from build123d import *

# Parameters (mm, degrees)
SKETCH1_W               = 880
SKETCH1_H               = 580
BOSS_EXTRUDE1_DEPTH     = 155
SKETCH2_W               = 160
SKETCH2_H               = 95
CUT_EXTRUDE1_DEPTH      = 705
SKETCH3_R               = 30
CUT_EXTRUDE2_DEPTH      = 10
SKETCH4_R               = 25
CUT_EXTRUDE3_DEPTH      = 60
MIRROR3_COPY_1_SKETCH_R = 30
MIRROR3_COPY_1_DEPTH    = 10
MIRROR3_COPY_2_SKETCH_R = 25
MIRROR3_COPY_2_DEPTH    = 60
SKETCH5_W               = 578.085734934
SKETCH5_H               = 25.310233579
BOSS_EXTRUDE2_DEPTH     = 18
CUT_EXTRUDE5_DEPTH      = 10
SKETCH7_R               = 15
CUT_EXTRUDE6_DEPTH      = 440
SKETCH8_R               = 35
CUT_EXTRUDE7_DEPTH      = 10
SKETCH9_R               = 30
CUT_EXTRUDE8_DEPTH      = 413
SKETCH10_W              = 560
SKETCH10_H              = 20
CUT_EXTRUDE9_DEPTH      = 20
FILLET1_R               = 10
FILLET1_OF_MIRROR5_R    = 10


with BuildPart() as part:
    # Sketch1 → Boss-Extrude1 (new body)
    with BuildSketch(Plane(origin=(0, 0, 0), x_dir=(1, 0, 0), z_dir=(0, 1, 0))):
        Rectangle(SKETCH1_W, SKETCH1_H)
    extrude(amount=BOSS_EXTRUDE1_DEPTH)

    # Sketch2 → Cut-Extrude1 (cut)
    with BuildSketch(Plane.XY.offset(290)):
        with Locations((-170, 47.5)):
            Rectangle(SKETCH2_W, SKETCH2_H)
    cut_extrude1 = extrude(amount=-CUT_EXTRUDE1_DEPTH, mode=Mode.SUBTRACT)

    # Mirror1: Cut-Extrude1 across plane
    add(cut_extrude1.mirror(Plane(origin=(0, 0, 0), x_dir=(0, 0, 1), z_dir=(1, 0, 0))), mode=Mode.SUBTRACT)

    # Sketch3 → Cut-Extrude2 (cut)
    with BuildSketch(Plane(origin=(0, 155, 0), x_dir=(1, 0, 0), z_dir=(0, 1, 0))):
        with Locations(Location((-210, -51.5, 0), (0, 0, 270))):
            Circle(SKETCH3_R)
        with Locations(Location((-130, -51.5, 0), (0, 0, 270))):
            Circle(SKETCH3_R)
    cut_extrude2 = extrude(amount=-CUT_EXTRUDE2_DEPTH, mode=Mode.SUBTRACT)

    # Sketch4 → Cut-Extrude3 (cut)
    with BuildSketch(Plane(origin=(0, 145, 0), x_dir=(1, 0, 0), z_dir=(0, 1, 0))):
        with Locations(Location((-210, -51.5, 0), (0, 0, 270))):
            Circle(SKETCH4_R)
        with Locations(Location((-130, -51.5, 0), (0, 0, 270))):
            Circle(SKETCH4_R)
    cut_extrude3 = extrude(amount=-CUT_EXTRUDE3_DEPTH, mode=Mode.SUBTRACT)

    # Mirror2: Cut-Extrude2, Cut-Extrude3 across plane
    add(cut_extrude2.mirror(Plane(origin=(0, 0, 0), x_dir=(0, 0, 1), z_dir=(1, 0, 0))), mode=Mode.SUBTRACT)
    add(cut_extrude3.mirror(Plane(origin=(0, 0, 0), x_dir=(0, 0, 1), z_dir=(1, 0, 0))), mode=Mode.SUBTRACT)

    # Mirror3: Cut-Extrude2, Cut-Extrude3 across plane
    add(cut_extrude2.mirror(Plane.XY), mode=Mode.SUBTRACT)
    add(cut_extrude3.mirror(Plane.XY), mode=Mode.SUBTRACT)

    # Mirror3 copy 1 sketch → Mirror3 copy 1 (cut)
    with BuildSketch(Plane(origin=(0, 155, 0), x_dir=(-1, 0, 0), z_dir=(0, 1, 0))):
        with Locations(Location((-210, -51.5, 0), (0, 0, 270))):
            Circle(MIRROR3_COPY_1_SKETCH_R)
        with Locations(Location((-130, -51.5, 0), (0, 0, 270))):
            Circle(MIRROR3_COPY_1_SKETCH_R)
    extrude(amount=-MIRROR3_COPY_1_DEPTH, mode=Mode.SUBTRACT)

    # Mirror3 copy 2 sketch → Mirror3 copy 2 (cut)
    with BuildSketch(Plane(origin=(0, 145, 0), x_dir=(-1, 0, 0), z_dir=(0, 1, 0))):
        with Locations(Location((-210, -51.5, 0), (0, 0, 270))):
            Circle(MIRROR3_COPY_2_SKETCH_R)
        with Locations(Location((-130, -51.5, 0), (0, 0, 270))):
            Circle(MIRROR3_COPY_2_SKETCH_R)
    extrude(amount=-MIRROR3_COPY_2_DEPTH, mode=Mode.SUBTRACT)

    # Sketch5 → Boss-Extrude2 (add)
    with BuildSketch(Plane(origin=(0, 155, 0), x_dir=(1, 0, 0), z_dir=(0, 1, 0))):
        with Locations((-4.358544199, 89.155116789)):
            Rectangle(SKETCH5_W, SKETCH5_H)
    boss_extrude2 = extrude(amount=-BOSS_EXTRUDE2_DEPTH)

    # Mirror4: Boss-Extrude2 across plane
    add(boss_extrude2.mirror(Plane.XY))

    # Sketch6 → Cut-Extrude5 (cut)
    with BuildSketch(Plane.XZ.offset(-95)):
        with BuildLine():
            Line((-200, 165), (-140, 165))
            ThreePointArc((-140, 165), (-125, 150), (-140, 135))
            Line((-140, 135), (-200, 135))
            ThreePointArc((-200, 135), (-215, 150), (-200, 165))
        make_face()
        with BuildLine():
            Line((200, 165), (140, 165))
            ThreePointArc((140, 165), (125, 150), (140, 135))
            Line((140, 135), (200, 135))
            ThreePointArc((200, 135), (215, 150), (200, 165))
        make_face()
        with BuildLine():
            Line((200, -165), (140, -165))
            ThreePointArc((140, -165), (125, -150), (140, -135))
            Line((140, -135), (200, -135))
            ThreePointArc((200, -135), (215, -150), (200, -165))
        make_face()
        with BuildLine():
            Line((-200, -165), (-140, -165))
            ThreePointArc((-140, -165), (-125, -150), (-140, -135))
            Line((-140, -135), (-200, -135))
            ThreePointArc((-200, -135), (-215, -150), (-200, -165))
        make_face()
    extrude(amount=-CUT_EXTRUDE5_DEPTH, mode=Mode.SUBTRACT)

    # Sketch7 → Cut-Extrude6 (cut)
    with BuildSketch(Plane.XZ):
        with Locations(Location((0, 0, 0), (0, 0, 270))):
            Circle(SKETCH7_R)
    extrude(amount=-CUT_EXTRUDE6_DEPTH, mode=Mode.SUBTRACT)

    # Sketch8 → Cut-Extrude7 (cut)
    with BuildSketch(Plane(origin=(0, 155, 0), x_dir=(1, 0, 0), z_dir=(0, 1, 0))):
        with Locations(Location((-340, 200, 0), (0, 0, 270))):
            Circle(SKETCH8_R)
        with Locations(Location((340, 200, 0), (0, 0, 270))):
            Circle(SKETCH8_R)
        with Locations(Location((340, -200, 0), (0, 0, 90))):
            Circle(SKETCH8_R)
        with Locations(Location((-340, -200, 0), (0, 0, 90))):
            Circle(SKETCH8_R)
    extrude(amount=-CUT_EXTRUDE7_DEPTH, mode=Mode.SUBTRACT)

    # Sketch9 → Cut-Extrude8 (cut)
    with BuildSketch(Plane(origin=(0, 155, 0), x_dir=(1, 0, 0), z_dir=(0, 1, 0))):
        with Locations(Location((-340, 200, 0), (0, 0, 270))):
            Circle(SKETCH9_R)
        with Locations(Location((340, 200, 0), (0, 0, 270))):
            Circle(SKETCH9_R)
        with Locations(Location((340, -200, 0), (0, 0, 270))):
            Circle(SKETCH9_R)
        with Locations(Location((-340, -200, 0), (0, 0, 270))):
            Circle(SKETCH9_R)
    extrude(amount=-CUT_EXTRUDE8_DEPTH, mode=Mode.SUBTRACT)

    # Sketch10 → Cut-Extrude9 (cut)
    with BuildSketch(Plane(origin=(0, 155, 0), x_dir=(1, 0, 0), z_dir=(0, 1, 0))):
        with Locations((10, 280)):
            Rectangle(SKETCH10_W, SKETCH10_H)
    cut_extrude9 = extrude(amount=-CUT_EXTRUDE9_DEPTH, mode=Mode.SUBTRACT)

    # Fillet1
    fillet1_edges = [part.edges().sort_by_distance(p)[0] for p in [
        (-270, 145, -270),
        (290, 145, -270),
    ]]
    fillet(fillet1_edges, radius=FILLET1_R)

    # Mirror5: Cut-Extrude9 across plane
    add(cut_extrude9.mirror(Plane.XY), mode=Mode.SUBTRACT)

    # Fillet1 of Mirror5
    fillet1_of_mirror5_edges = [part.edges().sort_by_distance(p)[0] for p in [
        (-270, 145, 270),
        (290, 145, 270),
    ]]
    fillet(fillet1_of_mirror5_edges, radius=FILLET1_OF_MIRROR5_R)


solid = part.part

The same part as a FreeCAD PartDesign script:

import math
import FreeCAD as App
import Part
import Sketcher

V = App.Vector


def edges_at(feature, points):
    """Names of the edges that pass closest to the given points."""
    edges = feature.Shape.Edges
    near = lambda p: min(range(len(edges)), key=lambda i: edges[i].distToShape(Part.Vertex(*p))[0])
    return sorted({f"Edge{near(p) + 1}" for p in points})

doc = App.newDocument("Part")
params = doc.addObject("Spreadsheet::Sheet", "Params")
for row, (alias, value) in enumerate([
    ("sketch1_width", "880 mm"),
    ("sketch1_height", "580 mm"),
    ("pad1_length", "155 mm"),
    ("sketch2_width", "160 mm"),
    ("sketch2_height", "95 mm"),
    ("pocket1_length", "705 mm"),
    ("sketch3_diameter", "60 mm"),
    ("pocket2_length", "10 mm"),
    ("sketch4_diameter", "50 mm"),
    ("pocket3_length", "60 mm"),
    ("sketch5_diameter", "60 mm"),
    ("pocket4_length", "10 mm"),
    ("sketch6_diameter", "50 mm"),
    ("pocket5_length", "60 mm"),
    ("pad2_length", "18 mm"),
    ("sketch8_radius", "15 mm"),
    ("sketch8_width", "60 mm"),
    ("pocket6_length", "10 mm"),
    ("sketch9_diameter", "30 mm"),
    ("pocket7_length", "440 mm"),
    ("sketch10_diameter", "70 mm"),
    ("pocket8_length", "10 mm"),
    ("sketch11_diameter", "60 mm"),
    ("pocket9_length", "413 mm"),
    ("sketch12_width", "560 mm"),
    ("sketch12_height", "20 mm"),
    ("pocket10_length", "20 mm"),
    ("fillet_radius", "10 mm"),
    ("fillet2_radius", "10 mm"),
], start=1):
    params.set(f"A{row}", alias)
    params.set(f"B{row}", "=" + value)
    params.setAlias(f"B{row}", alias)

body = doc.addObject("PartDesign::Body", "Body")

sketch1 = body.newObject("Sketcher::SketchObject", "Sketch")
sketch1.AttachmentSupport = (doc.getObject("XZ_Plane"), [""])
sketch1.MapMode = "FlatFace"
sketch1.addGeometry([
    Part.LineSegment(V(-440, -290, 0), V(-440, 290, 0)),
    Part.LineSegment(V(-440, 290, 0), V(440, 290, 0)),
    Part.LineSegment(V(440, 290, 0), V(440, -290, 0)),
    Part.LineSegment(V(440, -290, 0), V(-440, -290, 0)),
], False)
sketch1.addConstraint([
    Sketcher.Constraint("Coincident", 0, 2, 1, 1),
    Sketcher.Constraint("Coincident", 1, 2, 2, 1),
    Sketcher.Constraint("Coincident", 2, 2, 3, 1),
    Sketcher.Constraint("Coincident", 3, 2, 0, 1),
    Sketcher.Constraint("Vertical", 0),
    Sketcher.Constraint("Horizontal", 1),
    Sketcher.Constraint("Vertical", 2),
    Sketcher.Constraint("Horizontal", 3),
    Sketcher.Constraint("Symmetric", 0, 2, 2, 2, -1, 1),
    Sketcher.Constraint("DistanceX", 1, 1, 1, 2, 880.0),
    Sketcher.Constraint("DistanceY", 0, 1, 0, 2, 580.0),
])
sketch1.setExpression("Constraints[9]", "Params.sketch1_width")
sketch1.setExpression("Constraints[10]", "Params.sketch1_height")
pad1 = body.newObject("PartDesign::Pad", "Pad")
pad1.Profile = sketch1
pad1.setExpression("Length", "Params.pad1_length")
pad1.Reversed = True

sketch2 = body.newObject("Sketcher::SketchObject", "Sketch001")
sketch2.AttachmentSupport = (doc.getObject("XY_Plane"), [""])
sketch2.MapMode = "FlatFace"
sketch2.AttachmentOffset = App.Placement(V(0, 0, 290), App.Rotation())
sketch2.addGeometry([
    Part.LineSegment(V(-250, 95, 0), V(-250, 0, 0)),
    Part.LineSegment(V(-250, 0, 0), V(-90, 0, 0)),
    Part.LineSegment(V(-90, 0, 0), V(-90, 95, 0)),
    Part.LineSegment(V(-90, 95, 0), V(-250, 95, 0)),
], False)
sketch2.addConstraint([
    Sketcher.Constraint("Coincident", 0, 2, 1, 1),
    Sketcher.Constraint("Coincident", 1, 2, 2, 1),
    Sketcher.Constraint("Coincident", 2, 2, 3, 1),
    Sketcher.Constraint("Coincident", 3, 2, 0, 1),
    Sketcher.Constraint("Vertical", 0),
    Sketcher.Constraint("Horizontal", 1),
    Sketcher.Constraint("Vertical", 2),
    Sketcher.Constraint("Horizontal", 3),
    Sketcher.Constraint("PointOnObject", 0, 2, -1),
    Sketcher.Constraint("DistanceX", 1, 1, 1, 2, 160.0),
    Sketcher.Constraint("DistanceY", 0, 2, 0, 1, 95.0),
    Sketcher.Constraint("DistanceX", 0, 2, -1, 1, 250.0),
])
sketch2.setExpression("Constraints[9]", "Params.sketch2_width")
sketch2.setExpression("Constraints[10]", "Params.sketch2_height")
pocket1 = body.newObject("PartDesign::Pocket", "Pocket")
pocket1.Profile = sketch2
pocket1.setExpression("Length", "Params.pocket1_length")
doc.recompute()

mirrored = body.newObject("PartDesign::Mirrored", "Mirrored")
mirrored.Originals = [pocket1]
mirrored.MirrorPlane = (doc.getObject("YZ_Plane"), [""])
body.Tip = mirrored

sketch3 = body.newObject("Sketcher::SketchObject", "Sketch002")
sketch3.AttachmentSupport = (doc.getObject("XZ_Plane"), [""])
sketch3.MapMode = "FlatFace"
sketch3.AttachmentOffset = App.Placement(V(0, 0, -155), App.Rotation())
sketch3.addGeometry([
    Part.Circle(V(-210, 52, 0), V(0, 0, 1), 30),
    Part.Circle(V(-130, 52, 0), V(0, 0, 1), 30),
], False)
sketch3.addConstraint([
    Sketcher.Constraint("Equal", 0, 1),
    Sketcher.Constraint("Horizontal", 0, 3, 1, 3),
    Sketcher.Constraint("Diameter", 0, 60.0),
    Sketcher.Constraint("DistanceX", 0, 3, -1, 1, 210.0),
    Sketcher.Constraint("DistanceX", 1, 3, -1, 1, 130.0),
    Sketcher.Constraint("DistanceY", -1, 1, 0, 3, 51.5),
])
sketch3.setExpression("Constraints[2]", "Params.sketch3_diameter")
pocket2 = body.newObject("PartDesign::Pocket", "Pocket001")
pocket2.Profile = sketch3
pocket2.setExpression("Length", "Params.pocket2_length")
pocket2.Reversed = True

sketch4 = body.newObject("Sketcher::SketchObject", "Sketch003")
sketch4.AttachmentSupport = (doc.getObject("XZ_Plane"), [""])
sketch4.MapMode = "FlatFace"
sketch4.AttachmentOffset = App.Placement(V(0, 0, -145), App.Rotation())
sketch4.addGeometry([
    Part.Circle(V(-210, 52, 0), V(0, 0, 1), 25),
    Part.Circle(V(-130, 52, 0), V(0, 0, 1), 25),
], False)
sketch4.addConstraint([
    Sketcher.Constraint("Equal", 0, 1),
    Sketcher.Constraint("Horizontal", 0, 3, 1, 3),
    Sketcher.Constraint("Diameter", 0, 50.0),
    Sketcher.Constraint("DistanceX", 0, 3, -1, 1, 210.0),
    Sketcher.Constraint("DistanceX", 1, 3, -1, 1, 130.0),
    Sketcher.Constraint("DistanceY", -1, 1, 0, 3, 51.5),
])
sketch4.setExpression("Constraints[2]", "Params.sketch4_diameter")
pocket3 = body.newObject("PartDesign::Pocket", "Pocket002")
pocket3.Profile = sketch4
pocket3.setExpression("Length", "Params.pocket3_length")
pocket3.Reversed = True
doc.recompute()

mirrored2 = body.newObject("PartDesign::Mirrored", "Mirrored001")
mirrored2.Originals = [pocket2, pocket3]
mirrored2.MirrorPlane = (doc.getObject("YZ_Plane"), [""])
body.Tip = mirrored2
doc.recompute()

mirrored3 = body.newObject("PartDesign::Mirrored", "Mirrored002")
mirrored3.Originals = [pocket2, pocket3]
mirrored3.MirrorPlane = (doc.getObject("XY_Plane"), [""])
body.Tip = mirrored3

sketch5 = body.newObject("Sketcher::SketchObject", "Sketch004")
sketch5.AttachmentSupport = (doc.getObject("XZ_Plane"), [""])
sketch5.MapMode = "FlatFace"
sketch5.AttachmentOffset = App.Placement(V(0, 0, -155), App.Rotation())
sketch5.addGeometry([
    Part.Circle(V(210, -52, 0), V(0, 0, 1), 30),
    Part.Circle(V(130, -52, 0), V(0, 0, 1), 30),
], False)
sketch5.addConstraint([
    Sketcher.Constraint("Equal", 0, 1),
    Sketcher.Constraint("Horizontal", 0, 3, 1, 3),
    Sketcher.Constraint("Diameter", 0, 60.0),
    Sketcher.Constraint("DistanceX", -1, 1, 0, 3, 210.0),
    Sketcher.Constraint("DistanceX", -1, 1, 1, 3, 130.0),
    Sketcher.Constraint("DistanceY", 0, 3, -1, 1, 51.5),
])
sketch5.setExpression("Constraints[2]", "Params.sketch5_diameter")
pocket4 = body.newObject("PartDesign::Pocket", "Pocket003")
pocket4.Profile = sketch5
pocket4.setExpression("Length", "Params.pocket4_length")
pocket4.Reversed = True

sketch6 = body.newObject("Sketcher::SketchObject", "Sketch005")
sketch6.AttachmentSupport = (doc.getObject("XZ_Plane"), [""])
sketch6.MapMode = "FlatFace"
sketch6.AttachmentOffset = App.Placement(V(0, 0, -145), App.Rotation())
sketch6.addGeometry([
    Part.Circle(V(210, -52, 0), V(0, 0, 1), 25),
    Part.Circle(V(130, -52, 0), V(0, 0, 1), 25),
], False)
sketch6.addConstraint([
    Sketcher.Constraint("Equal", 0, 1),
    Sketcher.Constraint("Horizontal", 0, 3, 1, 3),
    Sketcher.Constraint("Diameter", 0, 50.0),
    Sketcher.Constraint("DistanceX", -1, 1, 0, 3, 210.0),
    Sketcher.Constraint("DistanceX", -1, 1, 1, 3, 130.0),
    Sketcher.Constraint("DistanceY", 0, 3, -1, 1, 51.5),
])
sketch6.setExpression("Constraints[2]", "Params.sketch6_diameter")
pocket5 = body.newObject("PartDesign::Pocket", "Pocket004")
pocket5.Profile = sketch6
pocket5.setExpression("Length", "Params.pocket5_length")
pocket5.Reversed = True

sketch7 = body.newObject("Sketcher::SketchObject", "Sketch006")
sketch7.AttachmentSupport = (doc.getObject("XZ_Plane"), [""])
sketch7.MapMode = "FlatFace"
sketch7.AttachmentOffset = App.Placement(V(0, 0, -155), App.Rotation())
sketch7.addGeometry([
    Part.LineSegment(V(-293, -102, 0), V(-293, -76, 0)),
    Part.LineSegment(V(-293, -76, 0), V(285, -76, 0)),
    Part.LineSegment(V(285, -76, 0), V(285, -102, 0)),
    Part.LineSegment(V(285, -102, 0), V(-293, -102, 0)),
], False)
sketch7.addConstraint([
    Sketcher.Constraint("Coincident", 0, 2, 1, 1),
    Sketcher.Constraint("Coincident", 1, 2, 2, 1),
    Sketcher.Constraint("Coincident", 2, 2, 3, 1),
    Sketcher.Constraint("Coincident", 3, 2, 0, 1),
    Sketcher.Constraint("Vertical", 0),
    Sketcher.Constraint("Horizontal", 1),
    Sketcher.Constraint("Vertical", 2),
    Sketcher.Constraint("Horizontal", 3),
    Sketcher.Constraint("DistanceY", 0, 2, -1, 1, 76.5),
    Sketcher.Constraint("DistanceX", 1, 1, 1, 2, 578.085735),
    Sketcher.Constraint("DistanceY", 0, 1, 0, 2, 25.310234),
    Sketcher.Constraint("DistanceX", 0, 2, -1, 1, 293.401412),
])
pad2 = body.newObject("PartDesign::Pad", "Pad001")
pad2.Profile = sketch7
pad2.setExpression("Length", "Params.pad2_length")
doc.recompute()

mirrored4 = body.newObject("PartDesign::Mirrored", "Mirrored003")
mirrored4.Originals = [pad2]
mirrored4.MirrorPlane = (doc.getObject("XY_Plane"), [""])
body.Tip = mirrored4

sketch8 = body.newObject("Sketcher::SketchObject", "Sketch007")
sketch8.AttachmentSupport = (doc.getObject("XZ_Plane"), [""])
sketch8.MapMode = "FlatFace"
sketch8.AttachmentOffset = App.Placement(V(0, 0, -95), App.Rotation())
sketch8.addGeometry([
    Part.LineSegment(V(-140, 165, 0), V(-200, 165, 0)),
    Part.ArcOfCircle(Part.Circle(V(-200, 150, 0), V(0, 0, 1), 15), math.radians(90), math.radians(270)),
    Part.LineSegment(V(-200, 135, 0), V(-140, 135, 0)),
    Part.ArcOfCircle(Part.Circle(V(-140, 150, 0), V(0, 0, 1), 15), math.radians(-90), math.radians(90)),
    Part.LineSegment(V(200, 165, 0), V(140, 165, 0)),
    Part.ArcOfCircle(Part.Circle(V(140, 150, 0), V(0, 0, 1), 15), math.radians(90), math.radians(270)),
    Part.LineSegment(V(140, 135, 0), V(200, 135, 0)),
    Part.ArcOfCircle(Part.Circle(V(200, 150, 0), V(0, 0, 1), 15), math.radians(-90), math.radians(90)),
    Part.LineSegment(V(140, -165, 0), V(200, -165, 0)),
    Part.ArcOfCircle(Part.Circle(V(200, -150, 0), V(0, 0, 1), 15), math.radians(-90), math.radians(90)),
    Part.LineSegment(V(200, -135, 0), V(140, -135, 0)),
    Part.ArcOfCircle(Part.Circle(V(140, -150, 0), V(0, 0, 1), 15), math.radians(90), math.radians(270)),
    Part.LineSegment(V(-200, -165, 0), V(-140, -165, 0)),
    Part.ArcOfCircle(Part.Circle(V(-140, -150, 0), V(0, 0, 1), 15), math.radians(-90), math.radians(90)),
    Part.LineSegment(V(-140, -135, 0), V(-200, -135, 0)),
    Part.ArcOfCircle(Part.Circle(V(-200, -150, 0), V(0, 0, 1), 15), math.radians(90), math.radians(270)),
], False)
sketch8.addConstraint([
    Sketcher.Constraint("Tangent", 0, 2, 1, 1),
    Sketcher.Constraint("Tangent", 1, 2, 2, 1),
    Sketcher.Constraint("Tangent", 2, 2, 3, 1),
    Sketcher.Constraint("Tangent", 3, 2, 0, 1),
    Sketcher.Constraint("Tangent", 4, 2, 5, 1),
    Sketcher.Constraint("Tangent", 5, 2, 6, 1),
    Sketcher.Constraint("Tangent", 6, 2, 7, 1),
    Sketcher.Constraint("Tangent", 7, 2, 4, 1),
    Sketcher.Constraint("Tangent", 8, 2, 9, 1),
    Sketcher.Constraint("Tangent", 9, 2, 10, 1),
    Sketcher.Constraint("Tangent", 10, 2, 11, 1),
    Sketcher.Constraint("Tangent", 11, 2, 8, 1),
    Sketcher.Constraint("Tangent", 12, 2, 13, 1),
    Sketcher.Constraint("Tangent", 13, 2, 14, 1),
    Sketcher.Constraint("Tangent", 14, 2, 15, 1),
    Sketcher.Constraint("Tangent", 15, 2, 12, 1),
    Sketcher.Constraint("Horizontal", 0),
    Sketcher.Constraint("Horizontal", 2),
    Sketcher.Constraint("Horizontal", 4),
    Sketcher.Constraint("Horizontal", 6),
    Sketcher.Constraint("Horizontal", 8),
    Sketcher.Constraint("Horizontal", 10),
    Sketcher.Constraint("Horizontal", 12),
    Sketcher.Constraint("Horizontal", 14),
    Sketcher.Constraint("Equal", 3, 5),
    Sketcher.Constraint("Equal", 7, 9),
    Sketcher.Constraint("Equal", 11, 13),
    Sketcher.Constraint("Symmetric", 1, 3, 9, 3, -1, 1),
    Sketcher.Constraint("Symmetric", 5, 3, 13, 3, -1, 1),
    Sketcher.Constraint("Symmetric", 3, 3, 5, 3, -2),
    Sketcher.Constraint("Vertical", 7, 3, 9, 3),
    Sketcher.Constraint("Vertical", 5, 3, 11, 3),
    Sketcher.Constraint("Vertical", 1, 3, 15, 3),
    Sketcher.Constraint("Radius", 1, 15.0),
    Sketcher.Constraint("DistanceX", 0, 2, 0, 1, 60.0),
    Sketcher.Constraint("DistanceX", 1, 3, -1, 1, 200.0),
    Sketcher.Constraint("DistanceY", -1, 1, 1, 3, 150.0),
])
sketch8.setExpression("Constraints[33]", "Params.sketch8_radius")
sketch8.setExpression("Constraints[34]", "Params.sketch8_width")
pocket6 = body.newObject("PartDesign::Pocket", "Pocket005")
pocket6.Profile = sketch8
pocket6.setExpression("Length", "Params.pocket6_length")

sketch9 = body.newObject("Sketcher::SketchObject", "Sketch008")
sketch9.AttachmentSupport = (doc.getObject("XZ_Plane"), [""])
sketch9.MapMode = "FlatFace"
sketch9.addGeometry(Part.Circle(V(0, 0, 0), V(0, 0, 1), 15), False)
sketch9.addConstraint([
    Sketcher.Constraint("Coincident", 0, 3, -1, 1),
    Sketcher.Constraint("Diameter", 0, 30.0),
])
sketch9.setExpression("Constraints[1]", "Params.sketch9_diameter")
pocket7 = body.newObject("PartDesign::Pocket", "Pocket006")
pocket7.Profile = sketch9
pocket7.setExpression("Length", "Params.pocket7_length")

sketch10 = body.newObject("Sketcher::SketchObject", "Sketch009")
sketch10.AttachmentSupport = (doc.getObject("XZ_Plane"), [""])
sketch10.MapMode = "FlatFace"
sketch10.AttachmentOffset = App.Placement(V(0, 0, -155), App.Rotation())
sketch10.addGeometry([
    Part.Circle(V(-340, -200, 0), V(0, 0, 1), 35),
    Part.Circle(V(340, -200, 0), V(0, 0, 1), 35),
    Part.Circle(V(340, 200, 0), V(0, 0, 1), 35),
    Part.Circle(V(-340, 200, 0), V(0, 0, 1), 35),
], False)
sketch10.addConstraint([
    Sketcher.Constraint("Equal", 0, 1),
    Sketcher.Constraint("Equal", 1, 2),
    Sketcher.Constraint("Equal", 2, 3),
    Sketcher.Constraint("Symmetric", 0, 3, 2, 3, -1, 1),
    Sketcher.Constraint("Symmetric", 1, 3, 3, 3, -1, 1),
    Sketcher.Constraint("Symmetric", 0, 3, 1, 3, -2),
    Sketcher.Constraint("Diameter", 0, 70.0),
    Sketcher.Constraint("DistanceX", 0, 3, -1, 1, 340.0),
    Sketcher.Constraint("DistanceY", 0, 3, -1, 1, 200.0),
])
sketch10.setExpression("Constraints[6]", "Params.sketch10_diameter")
pocket8 = body.newObject("PartDesign::Pocket", "Pocket007")
pocket8.Profile = sketch10
pocket8.setExpression("Length", "Params.pocket8_length")
pocket8.Reversed = True

sketch11 = body.newObject("Sketcher::SketchObject", "Sketch010")
sketch11.AttachmentSupport = (doc.getObject("XZ_Plane"), [""])
sketch11.MapMode = "FlatFace"
sketch11.AttachmentOffset = App.Placement(V(0, 0, -155), App.Rotation())
sketch11.addGeometry([
    Part.Circle(V(-340, -200, 0), V(0, 0, 1), 30),
    Part.Circle(V(340, -200, 0), V(0, 0, 1), 30),
    Part.Circle(V(340, 200, 0), V(0, 0, 1), 30),
    Part.Circle(V(-340, 200, 0), V(0, 0, 1), 30),
], False)
sketch11.addConstraint([
    Sketcher.Constraint("Equal", 0, 1),
    Sketcher.Constraint("Equal", 1, 2),
    Sketcher.Constraint("Equal", 2, 3),
    Sketcher.Constraint("Symmetric", 0, 3, 2, 3, -1, 1),
    Sketcher.Constraint("Symmetric", 1, 3, 3, 3, -1, 1),
    Sketcher.Constraint("Symmetric", 0, 3, 1, 3, -2),
    Sketcher.Constraint("Diameter", 0, 60.0),
    Sketcher.Constraint("DistanceX", 0, 3, -1, 1, 340.0),
    Sketcher.Constraint("DistanceY", 0, 3, -1, 1, 200.0),
])
sketch11.setExpression("Constraints[6]", "Params.sketch11_diameter")
pocket9 = body.newObject("PartDesign::Pocket", "Pocket008")
pocket9.Profile = sketch11
pocket9.setExpression("Length", "Params.pocket9_length")
pocket9.Reversed = True

sketch12 = body.newObject("Sketcher::SketchObject", "Sketch011")
sketch12.AttachmentSupport = (doc.getObject("XZ_Plane"), [""])
sketch12.MapMode = "FlatFace"
sketch12.AttachmentOffset = App.Placement(V(0, 0, -155), App.Rotation())
sketch12.addGeometry([
    Part.LineSegment(V(-270, -290, 0), V(-270, -270, 0)),
    Part.LineSegment(V(-270, -270, 0), V(290, -270, 0)),
    Part.LineSegment(V(290, -270, 0), V(290, -290, 0)),
    Part.LineSegment(V(290, -290, 0), V(-270, -290, 0)),
], False)
sketch12.addConstraint([
    Sketcher.Constraint("Coincident", 0, 2, 1, 1),
    Sketcher.Constraint("Coincident", 1, 2, 2, 1),
    Sketcher.Constraint("Coincident", 2, 2, 3, 1),
    Sketcher.Constraint("Coincident", 3, 2, 0, 1),
    Sketcher.Constraint("Vertical", 0),
    Sketcher.Constraint("Horizontal", 1),
    Sketcher.Constraint("Vertical", 2),
    Sketcher.Constraint("Horizontal", 3),
    Sketcher.Constraint("DistanceX", 1, 1, 1, 2, 560.0),
    Sketcher.Constraint("DistanceY", 0, 1, 0, 2, 20.0),
    Sketcher.Constraint("DistanceX", 0, 2, -1, 1, 270.0),
    Sketcher.Constraint("DistanceY", 0, 2, -1, 1, 270.0),
])
sketch12.setExpression("Constraints[8]", "Params.sketch12_width")
sketch12.setExpression("Constraints[9]", "Params.sketch12_height")
pocket10 = body.newObject("PartDesign::Pocket", "Pocket009")
pocket10.Profile = sketch12
pocket10.setExpression("Length", "Params.pocket10_length")
pocket10.Reversed = True
doc.recompute()

fillet = body.newObject("PartDesign::Fillet", "Fillet")
fillet.Base = (pocket10, edges_at(pocket10, [(-270, 145, -270), (290, 145, -270)]))
fillet.setExpression("Radius", "Params.fillet_radius")
doc.recompute()

mirrored5 = body.newObject("PartDesign::Mirrored", "Mirrored004")
mirrored5.Originals = [pocket10]
mirrored5.MirrorPlane = (doc.getObject("XY_Plane"), [""])
body.Tip = mirrored5
doc.recompute()

fillet2 = body.newObject("PartDesign::Fillet", "Fillet001")
fillet2.Base = (mirrored5, edges_at(mirrored5, [(-270, 145, 270), (290, 145, 270)]))
fillet2.setExpression("Radius", "Params.fillet2_radius")

doc.recompute()
